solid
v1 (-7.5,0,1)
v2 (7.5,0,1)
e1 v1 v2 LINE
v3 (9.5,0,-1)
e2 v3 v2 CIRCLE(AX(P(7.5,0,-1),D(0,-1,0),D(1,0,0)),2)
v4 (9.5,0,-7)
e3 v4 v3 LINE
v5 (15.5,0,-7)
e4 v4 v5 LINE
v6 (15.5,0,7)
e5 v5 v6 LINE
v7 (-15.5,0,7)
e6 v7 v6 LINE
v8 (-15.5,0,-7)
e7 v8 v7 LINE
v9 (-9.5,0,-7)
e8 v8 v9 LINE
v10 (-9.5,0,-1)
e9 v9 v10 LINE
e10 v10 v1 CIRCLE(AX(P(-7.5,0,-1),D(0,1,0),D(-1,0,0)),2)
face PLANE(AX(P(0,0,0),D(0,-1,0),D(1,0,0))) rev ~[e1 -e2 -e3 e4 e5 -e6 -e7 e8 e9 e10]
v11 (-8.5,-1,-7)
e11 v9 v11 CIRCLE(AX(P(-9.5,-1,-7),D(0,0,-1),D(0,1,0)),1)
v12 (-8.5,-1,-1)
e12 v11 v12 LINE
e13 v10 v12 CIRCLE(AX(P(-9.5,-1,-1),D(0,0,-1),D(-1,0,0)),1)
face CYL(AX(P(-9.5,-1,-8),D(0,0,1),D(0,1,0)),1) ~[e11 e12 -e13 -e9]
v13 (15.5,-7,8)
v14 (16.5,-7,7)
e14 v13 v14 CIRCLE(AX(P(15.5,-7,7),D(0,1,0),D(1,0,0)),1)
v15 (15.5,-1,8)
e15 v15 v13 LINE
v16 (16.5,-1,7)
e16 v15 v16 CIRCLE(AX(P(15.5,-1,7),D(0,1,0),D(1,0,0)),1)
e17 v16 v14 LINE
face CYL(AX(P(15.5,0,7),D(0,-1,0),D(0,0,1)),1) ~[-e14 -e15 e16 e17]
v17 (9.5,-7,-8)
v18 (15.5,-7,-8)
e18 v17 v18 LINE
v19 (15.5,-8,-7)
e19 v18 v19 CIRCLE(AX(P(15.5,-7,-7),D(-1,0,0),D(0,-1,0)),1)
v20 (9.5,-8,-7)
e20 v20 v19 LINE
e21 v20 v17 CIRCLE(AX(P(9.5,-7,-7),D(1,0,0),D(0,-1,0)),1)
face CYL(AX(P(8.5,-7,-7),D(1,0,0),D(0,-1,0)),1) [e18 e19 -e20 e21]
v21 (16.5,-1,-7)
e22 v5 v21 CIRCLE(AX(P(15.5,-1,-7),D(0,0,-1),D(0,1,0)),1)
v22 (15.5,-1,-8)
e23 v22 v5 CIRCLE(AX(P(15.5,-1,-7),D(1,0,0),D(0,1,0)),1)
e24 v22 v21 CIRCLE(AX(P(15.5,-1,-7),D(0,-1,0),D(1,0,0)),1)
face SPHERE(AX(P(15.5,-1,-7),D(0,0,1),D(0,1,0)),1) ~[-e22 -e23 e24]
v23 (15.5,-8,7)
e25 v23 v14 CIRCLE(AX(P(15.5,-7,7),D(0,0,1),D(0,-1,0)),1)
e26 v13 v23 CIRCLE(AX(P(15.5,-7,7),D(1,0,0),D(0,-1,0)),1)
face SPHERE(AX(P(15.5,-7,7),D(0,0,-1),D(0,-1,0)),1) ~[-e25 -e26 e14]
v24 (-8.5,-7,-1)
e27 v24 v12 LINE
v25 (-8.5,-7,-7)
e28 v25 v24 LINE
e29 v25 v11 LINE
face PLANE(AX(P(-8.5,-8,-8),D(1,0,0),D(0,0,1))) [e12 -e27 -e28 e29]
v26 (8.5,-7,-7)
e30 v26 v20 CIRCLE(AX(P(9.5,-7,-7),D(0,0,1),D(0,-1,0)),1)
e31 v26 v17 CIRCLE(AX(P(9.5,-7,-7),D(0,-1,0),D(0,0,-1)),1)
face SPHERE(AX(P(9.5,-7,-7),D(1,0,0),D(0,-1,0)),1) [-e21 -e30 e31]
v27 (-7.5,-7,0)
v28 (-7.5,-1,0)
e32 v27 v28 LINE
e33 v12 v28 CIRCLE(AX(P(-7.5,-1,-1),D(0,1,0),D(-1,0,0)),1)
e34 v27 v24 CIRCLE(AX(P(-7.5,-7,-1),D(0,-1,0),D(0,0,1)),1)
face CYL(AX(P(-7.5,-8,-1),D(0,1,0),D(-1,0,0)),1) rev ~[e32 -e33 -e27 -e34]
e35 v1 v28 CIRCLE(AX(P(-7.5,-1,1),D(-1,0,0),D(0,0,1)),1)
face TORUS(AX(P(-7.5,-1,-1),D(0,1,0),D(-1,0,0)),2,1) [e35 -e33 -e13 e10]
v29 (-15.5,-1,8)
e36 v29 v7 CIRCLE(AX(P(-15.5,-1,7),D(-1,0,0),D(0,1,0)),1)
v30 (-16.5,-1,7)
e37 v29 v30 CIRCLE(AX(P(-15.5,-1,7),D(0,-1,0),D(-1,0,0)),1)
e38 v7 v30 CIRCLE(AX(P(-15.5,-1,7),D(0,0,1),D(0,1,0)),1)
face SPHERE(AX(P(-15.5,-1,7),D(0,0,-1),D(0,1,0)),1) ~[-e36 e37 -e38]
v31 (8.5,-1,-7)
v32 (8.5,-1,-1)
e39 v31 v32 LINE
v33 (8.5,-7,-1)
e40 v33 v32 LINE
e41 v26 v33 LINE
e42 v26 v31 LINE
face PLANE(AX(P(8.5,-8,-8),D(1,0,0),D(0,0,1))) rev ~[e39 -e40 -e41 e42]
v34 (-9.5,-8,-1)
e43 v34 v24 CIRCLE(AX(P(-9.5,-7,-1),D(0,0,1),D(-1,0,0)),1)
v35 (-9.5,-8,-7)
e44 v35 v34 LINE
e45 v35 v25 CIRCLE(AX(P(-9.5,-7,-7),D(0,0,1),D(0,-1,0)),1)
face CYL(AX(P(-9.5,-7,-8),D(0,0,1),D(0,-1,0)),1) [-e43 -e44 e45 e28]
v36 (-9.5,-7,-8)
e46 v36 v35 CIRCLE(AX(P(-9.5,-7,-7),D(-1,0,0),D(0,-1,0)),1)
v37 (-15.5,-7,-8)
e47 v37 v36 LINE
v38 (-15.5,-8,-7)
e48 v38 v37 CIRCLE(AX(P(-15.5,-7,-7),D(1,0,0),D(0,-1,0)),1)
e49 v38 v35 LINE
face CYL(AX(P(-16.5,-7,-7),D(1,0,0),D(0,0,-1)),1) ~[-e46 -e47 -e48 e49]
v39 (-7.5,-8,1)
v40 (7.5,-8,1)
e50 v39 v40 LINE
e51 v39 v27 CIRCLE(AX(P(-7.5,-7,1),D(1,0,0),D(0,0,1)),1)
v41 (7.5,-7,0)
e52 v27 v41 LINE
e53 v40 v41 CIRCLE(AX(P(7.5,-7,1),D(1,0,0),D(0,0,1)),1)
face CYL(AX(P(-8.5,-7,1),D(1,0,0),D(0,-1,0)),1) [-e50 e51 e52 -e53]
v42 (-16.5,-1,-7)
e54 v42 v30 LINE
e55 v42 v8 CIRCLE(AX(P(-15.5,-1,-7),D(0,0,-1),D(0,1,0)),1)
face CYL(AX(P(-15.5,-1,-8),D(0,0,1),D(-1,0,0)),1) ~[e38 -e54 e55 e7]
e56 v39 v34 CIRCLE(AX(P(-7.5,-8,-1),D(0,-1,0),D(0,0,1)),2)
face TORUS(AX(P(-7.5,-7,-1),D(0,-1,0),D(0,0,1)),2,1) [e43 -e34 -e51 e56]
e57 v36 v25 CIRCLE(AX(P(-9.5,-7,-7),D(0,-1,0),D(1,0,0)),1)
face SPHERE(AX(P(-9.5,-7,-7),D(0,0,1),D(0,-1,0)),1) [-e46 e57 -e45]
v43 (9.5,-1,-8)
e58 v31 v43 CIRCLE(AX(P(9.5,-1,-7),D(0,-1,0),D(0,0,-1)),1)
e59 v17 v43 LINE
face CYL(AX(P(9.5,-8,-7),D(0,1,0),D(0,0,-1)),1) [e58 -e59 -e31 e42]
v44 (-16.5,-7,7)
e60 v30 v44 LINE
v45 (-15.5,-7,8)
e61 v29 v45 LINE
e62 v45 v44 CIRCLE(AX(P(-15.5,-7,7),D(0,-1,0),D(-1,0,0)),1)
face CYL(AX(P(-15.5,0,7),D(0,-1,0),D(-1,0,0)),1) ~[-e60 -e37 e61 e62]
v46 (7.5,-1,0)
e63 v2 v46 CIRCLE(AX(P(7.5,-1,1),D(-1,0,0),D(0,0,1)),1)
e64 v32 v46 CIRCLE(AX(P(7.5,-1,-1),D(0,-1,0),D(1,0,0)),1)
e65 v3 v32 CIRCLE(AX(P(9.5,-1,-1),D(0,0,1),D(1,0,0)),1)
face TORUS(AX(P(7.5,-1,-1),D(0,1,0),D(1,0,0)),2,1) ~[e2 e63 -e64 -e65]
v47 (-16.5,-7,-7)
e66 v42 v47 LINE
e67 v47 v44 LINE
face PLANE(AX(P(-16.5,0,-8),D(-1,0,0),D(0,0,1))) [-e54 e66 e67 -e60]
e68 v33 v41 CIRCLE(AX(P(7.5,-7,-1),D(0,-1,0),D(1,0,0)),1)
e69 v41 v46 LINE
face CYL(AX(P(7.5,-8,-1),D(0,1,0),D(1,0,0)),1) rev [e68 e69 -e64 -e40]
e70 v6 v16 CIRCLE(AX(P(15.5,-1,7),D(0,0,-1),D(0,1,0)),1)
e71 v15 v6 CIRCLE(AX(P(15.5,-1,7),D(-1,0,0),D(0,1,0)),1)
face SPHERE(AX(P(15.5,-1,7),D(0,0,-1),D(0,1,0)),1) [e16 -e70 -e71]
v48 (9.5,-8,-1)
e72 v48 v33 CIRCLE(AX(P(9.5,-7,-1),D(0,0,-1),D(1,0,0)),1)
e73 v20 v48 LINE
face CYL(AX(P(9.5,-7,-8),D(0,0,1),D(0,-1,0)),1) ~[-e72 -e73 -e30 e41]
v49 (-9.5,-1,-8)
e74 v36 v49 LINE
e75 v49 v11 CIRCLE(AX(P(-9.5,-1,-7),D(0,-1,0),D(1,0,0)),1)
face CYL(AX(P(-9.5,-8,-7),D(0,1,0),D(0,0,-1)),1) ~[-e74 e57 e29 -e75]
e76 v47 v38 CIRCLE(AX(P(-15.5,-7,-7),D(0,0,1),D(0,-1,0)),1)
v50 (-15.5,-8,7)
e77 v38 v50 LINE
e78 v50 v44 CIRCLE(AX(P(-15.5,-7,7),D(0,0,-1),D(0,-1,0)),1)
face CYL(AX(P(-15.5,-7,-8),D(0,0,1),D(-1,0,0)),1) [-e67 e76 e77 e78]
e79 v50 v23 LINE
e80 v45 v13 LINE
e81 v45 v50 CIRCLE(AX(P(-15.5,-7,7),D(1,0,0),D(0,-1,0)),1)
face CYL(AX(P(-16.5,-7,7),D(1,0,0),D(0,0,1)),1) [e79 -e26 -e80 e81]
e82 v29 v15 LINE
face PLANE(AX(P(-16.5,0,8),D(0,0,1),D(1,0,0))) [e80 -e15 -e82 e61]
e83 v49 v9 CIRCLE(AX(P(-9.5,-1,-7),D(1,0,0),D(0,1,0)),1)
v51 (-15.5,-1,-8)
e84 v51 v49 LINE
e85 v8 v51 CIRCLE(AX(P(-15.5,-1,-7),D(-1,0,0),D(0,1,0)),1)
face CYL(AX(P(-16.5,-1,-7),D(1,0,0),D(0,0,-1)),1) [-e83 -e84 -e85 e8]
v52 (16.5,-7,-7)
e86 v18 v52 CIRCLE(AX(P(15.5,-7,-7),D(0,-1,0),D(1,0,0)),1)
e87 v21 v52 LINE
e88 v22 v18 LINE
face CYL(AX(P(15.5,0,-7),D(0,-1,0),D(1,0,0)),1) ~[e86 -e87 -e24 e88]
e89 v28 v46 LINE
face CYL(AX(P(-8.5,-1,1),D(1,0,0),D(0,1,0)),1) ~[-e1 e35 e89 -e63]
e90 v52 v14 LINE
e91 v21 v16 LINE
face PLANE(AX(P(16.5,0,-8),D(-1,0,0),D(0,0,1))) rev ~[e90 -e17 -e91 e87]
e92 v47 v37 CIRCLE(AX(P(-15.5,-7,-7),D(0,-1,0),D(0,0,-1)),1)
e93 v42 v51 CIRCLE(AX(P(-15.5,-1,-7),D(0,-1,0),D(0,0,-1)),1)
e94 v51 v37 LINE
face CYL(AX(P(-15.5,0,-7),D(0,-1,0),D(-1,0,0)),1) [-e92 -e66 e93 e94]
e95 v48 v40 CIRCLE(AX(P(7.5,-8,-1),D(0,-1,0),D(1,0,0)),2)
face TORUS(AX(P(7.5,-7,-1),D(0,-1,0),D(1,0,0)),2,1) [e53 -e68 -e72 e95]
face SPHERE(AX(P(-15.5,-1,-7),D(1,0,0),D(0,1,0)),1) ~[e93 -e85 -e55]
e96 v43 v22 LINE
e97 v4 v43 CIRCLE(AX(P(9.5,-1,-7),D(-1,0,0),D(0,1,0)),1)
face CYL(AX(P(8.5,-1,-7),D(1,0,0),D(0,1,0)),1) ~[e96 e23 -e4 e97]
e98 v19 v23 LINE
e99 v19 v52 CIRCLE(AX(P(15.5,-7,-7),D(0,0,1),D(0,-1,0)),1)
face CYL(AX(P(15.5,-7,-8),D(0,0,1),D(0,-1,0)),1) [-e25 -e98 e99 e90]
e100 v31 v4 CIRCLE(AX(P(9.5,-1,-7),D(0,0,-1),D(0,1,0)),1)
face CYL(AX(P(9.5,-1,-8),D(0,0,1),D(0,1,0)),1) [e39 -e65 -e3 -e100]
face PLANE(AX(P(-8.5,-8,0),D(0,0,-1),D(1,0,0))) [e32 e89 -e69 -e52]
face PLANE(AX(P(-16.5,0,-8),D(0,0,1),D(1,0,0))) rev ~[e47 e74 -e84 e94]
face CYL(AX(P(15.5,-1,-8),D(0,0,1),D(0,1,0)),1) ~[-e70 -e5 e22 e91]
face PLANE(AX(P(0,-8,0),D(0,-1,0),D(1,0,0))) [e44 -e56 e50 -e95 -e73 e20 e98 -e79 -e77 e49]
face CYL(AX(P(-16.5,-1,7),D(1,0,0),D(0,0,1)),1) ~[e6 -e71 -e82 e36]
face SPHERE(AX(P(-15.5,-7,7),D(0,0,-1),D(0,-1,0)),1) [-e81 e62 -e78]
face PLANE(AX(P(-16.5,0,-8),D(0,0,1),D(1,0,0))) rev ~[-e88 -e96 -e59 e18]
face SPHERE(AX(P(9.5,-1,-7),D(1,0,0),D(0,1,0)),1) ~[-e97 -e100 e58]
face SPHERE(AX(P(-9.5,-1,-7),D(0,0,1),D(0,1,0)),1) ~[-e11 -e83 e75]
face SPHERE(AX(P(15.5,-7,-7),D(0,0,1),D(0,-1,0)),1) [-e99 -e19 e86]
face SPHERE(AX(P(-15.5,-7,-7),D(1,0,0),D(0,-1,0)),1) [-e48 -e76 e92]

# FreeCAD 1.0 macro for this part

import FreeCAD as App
import Part
import Sketcher
Q = App.Units.Quantity

doc = App.newDocument("Part")
body = doc.addObject("PartDesign::Body", "Body")

# Sketch on XZ plane
sketch1 = body.newObject("Sketcher::SketchObject", "Sketch")
sketch1.AttachmentSupport = (doc.getObject("XZ_Plane"), [""])
sketch1.MapMode = "FlatFace"
sketch1.addGeometry(Part.LineSegment(App.Vector(-16, 8, 0), App.Vector(-16, -8, 0)), False)
sketch1.addGeometry(Part.LineSegment(App.Vector(-16, -8, 0), App.Vector(16, -8, 0)), False)
sketch1.addGeometry(Part.LineSegment(App.Vector(16, -8, 0), App.Vector(16, 8, 0)), False)
sketch1.addGeometry(Part.LineSegment(App.Vector(16, 8, 0), App.Vector(-16, 8, 0)), False)
sketch1.addConstraint(Sketcher.Constraint("Coincident", 0, 2, 1, 1))
sketch1.addConstraint(Sketcher.Constraint("Coincident", 1, 2, 2, 1))
sketch1.addConstraint(Sketcher.Constraint("Coincident", 2, 2, 3, 1))
sketch1.addConstraint(Sketcher.Constraint("Coincident", 3, 2, 0, 1))
sketch1.addConstraint(Sketcher.Constraint("Vertical", 0))
sketch1.addConstraint(Sketcher.Constraint("Horizontal", 1))
sketch1.addConstraint(Sketcher.Constraint("Vertical", 2))
sketch1.addConstraint(Sketcher.Constraint("Horizontal", 3))
sketch1.addConstraint(Sketcher.Constraint("Symmetric", 0, 2, 2, 2, -1, 1))
sketch1.addConstraint(Sketcher.Constraint("DistanceX", 1, 1, 1, 2, Q("33 mm")))
sketch1.addConstraint(Sketcher.Constraint("DistanceY", 0, 2, 0, 1, Q("16 mm")))
pad1 = body.newObject("PartDesign::Pad", "Pad")
pad1.Profile = sketch1
pad1.Length = 8

# Sketch on XZ plane
sketch2 = body.newObject("Sketcher::SketchObject", "Sketch001")
sketch2.AttachmentSupport = (doc.getObject("XZ_Plane"), [""])
sketch2.MapMode = "FlatFace"
sketch2.AttachmentOffset = App.Placement(App.Vector(0, 0, 8), App.Rotation())
sketch2.addGeometry(Part.LineSegment(App.Vector(-8, 0, 0), App.Vector(-8, -8, 0)), False)
sketch2.addGeometry(Part.LineSegment(App.Vector(-8, -8, 0), App.Vector(8, -8, 0)), False)
sketch2.addGeometry(Part.LineSegment(App.Vector(8, -8, 0), App.Vector(8, 0, 0)), False)
sketch2.addGeometry(Part.LineSegment(App.Vector(8, 0, 0), App.Vector(-8, 0, 0)), False)
sketch2.addConstraint(Sketcher.Constraint("Coincident", 0, 2, 1, 1))
sketch2.addConstraint(Sketcher.Constraint("Coincident", 1, 2, 2, 1))
sketch2.addConstraint(Sketcher.Constraint("Coincident", 2, 2, 3, 1))
sketch2.addConstraint(Sketcher.Constraint("Coincident", 3, 2, 0, 1))
sketch2.addConstraint(Sketcher.Constraint("Vertical", 0))
sketch2.addConstraint(Sketcher.Constraint("Horizontal", 1))
sketch2.addConstraint(Sketcher.Constraint("Vertical", 2))
sketch2.addConstraint(Sketcher.Constraint("Horizontal", 3))
sketch2.addConstraint(Sketcher.Constraint("Symmetric", 2, 2, 3, 2, -1, 1))
sketch2.addConstraint(Sketcher.Constraint("DistanceX", 1, 1, 1, 2, Q("17 mm")))
sketch2.addConstraint(Sketcher.Constraint("DistanceY", 0, 2, 0, 1, Q("8 mm")))
pocket1 = body.newObject("PartDesign::Pocket", "Pocket")
pocket1.Profile = sketch2
pocket1.Length = 25
doc.recompute()

fillet = body.newObject("PartDesign::Fillet", "Fillet")
fillet.Base = (pocket1, ["Edge1"])
fillet.UseAllEdges = True
fillet.Radius = 1

doc.recompute()
